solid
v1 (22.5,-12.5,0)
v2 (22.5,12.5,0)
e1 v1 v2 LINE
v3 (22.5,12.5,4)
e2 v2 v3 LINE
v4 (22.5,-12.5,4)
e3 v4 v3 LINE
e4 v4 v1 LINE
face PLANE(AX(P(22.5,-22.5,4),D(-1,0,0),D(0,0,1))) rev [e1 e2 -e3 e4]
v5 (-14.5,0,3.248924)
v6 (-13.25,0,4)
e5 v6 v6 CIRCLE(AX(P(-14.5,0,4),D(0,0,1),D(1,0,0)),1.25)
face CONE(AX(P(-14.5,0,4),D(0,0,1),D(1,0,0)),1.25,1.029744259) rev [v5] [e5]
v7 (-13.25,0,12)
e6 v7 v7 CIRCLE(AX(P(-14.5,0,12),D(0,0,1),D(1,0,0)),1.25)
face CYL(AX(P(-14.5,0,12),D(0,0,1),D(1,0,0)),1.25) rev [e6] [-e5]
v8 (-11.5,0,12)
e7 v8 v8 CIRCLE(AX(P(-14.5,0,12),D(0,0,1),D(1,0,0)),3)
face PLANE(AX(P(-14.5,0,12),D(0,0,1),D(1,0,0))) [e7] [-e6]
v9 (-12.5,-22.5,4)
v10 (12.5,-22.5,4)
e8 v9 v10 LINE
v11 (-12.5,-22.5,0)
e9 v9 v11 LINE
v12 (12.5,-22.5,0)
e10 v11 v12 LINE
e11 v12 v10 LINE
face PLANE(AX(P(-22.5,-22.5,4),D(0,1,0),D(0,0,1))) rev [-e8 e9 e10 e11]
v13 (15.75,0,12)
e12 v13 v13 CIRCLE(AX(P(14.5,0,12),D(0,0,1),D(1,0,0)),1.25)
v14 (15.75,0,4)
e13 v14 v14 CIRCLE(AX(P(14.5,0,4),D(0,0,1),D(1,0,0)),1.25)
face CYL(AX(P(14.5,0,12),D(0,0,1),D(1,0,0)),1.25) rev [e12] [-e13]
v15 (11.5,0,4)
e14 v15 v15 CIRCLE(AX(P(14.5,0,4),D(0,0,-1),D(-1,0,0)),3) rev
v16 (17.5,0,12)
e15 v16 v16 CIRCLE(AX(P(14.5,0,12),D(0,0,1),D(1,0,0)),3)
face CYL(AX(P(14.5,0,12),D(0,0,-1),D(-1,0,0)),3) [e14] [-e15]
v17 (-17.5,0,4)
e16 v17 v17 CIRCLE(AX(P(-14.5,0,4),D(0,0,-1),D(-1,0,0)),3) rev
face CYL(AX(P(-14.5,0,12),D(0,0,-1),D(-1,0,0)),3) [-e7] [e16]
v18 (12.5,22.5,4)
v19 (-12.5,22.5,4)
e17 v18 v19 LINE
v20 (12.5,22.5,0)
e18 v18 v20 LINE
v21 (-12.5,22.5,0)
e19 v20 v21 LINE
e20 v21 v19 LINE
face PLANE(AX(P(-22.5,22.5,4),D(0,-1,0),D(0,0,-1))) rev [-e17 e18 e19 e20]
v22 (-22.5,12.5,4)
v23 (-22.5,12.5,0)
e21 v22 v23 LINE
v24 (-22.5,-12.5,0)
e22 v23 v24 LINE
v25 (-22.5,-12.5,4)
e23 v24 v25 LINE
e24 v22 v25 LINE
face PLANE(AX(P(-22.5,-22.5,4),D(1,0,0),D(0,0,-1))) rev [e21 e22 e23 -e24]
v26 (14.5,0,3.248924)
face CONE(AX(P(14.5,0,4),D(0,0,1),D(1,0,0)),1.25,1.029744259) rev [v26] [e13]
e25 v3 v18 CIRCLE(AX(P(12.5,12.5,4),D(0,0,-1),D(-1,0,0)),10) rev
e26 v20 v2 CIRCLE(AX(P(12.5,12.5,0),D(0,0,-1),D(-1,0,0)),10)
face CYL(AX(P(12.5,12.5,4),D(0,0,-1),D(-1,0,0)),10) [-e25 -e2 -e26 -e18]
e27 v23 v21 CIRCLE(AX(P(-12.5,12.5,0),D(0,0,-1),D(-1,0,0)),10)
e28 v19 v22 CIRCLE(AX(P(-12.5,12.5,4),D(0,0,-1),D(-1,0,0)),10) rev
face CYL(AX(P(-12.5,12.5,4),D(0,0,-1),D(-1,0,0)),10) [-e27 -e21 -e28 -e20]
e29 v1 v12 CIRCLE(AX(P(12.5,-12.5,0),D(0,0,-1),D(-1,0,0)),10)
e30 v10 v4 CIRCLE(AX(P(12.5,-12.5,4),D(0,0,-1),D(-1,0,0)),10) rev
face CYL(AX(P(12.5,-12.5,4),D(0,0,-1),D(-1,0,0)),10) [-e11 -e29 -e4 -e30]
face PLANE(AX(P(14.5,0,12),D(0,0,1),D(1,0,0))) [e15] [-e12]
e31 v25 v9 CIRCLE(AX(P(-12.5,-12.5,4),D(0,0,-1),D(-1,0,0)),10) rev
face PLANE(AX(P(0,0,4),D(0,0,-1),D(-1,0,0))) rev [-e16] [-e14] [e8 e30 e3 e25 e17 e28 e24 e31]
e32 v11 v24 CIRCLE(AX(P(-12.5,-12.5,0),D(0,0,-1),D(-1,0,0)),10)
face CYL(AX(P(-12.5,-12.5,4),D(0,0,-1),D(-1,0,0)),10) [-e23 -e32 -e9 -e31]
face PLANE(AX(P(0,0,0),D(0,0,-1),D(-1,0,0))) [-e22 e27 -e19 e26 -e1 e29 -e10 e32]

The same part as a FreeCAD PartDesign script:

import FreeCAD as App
import Part
import Sketcher


def edges_at(feature, points):
    """Names of the edges that pass closest to the given points."""
    edges = feature.Shape.Edges
    near = lambda p: min(range(len(edges)), key=lambda i: edges[i].distToShape(Part.Vertex(*p))[0])
    return sorted({f"Edge{near(p) + 1}" for p in points})


def add_polygon(sketch, points):
    """Adds a closed chain of lines whose ends are joined by coincident constraints."""
    first, n = sketch.GeometryCount, len(points)
    for a, b in zip(points, points[1:] + points[:1]):
        sketch.addGeometry(Part.LineSegment(App.Vector(*a, 0), App.Vector(*b, 0)), False)
    for i in range(n):
        sketch.addConstraint(Sketcher.Constraint("Coincident", first + i, 2, first + (i + 1) % n, 1))

doc = App.newDocument("Part")
body = doc.addObject("PartDesign::Body", "Body")

# Sketch on XY plane
sketch1 = body.newObject("Sketcher::SketchObject", "Sketch")
sketch1.AttachmentSupport = (doc.getObject("XY_Plane"), [""])
sketch1.MapMode = "FlatFace"
add_polygon(sketch1, [(-22, 22), (-22, -22), (22, -22), (22, 22)])  # lines 0-3
sketch1.addConstraint([
    Sketcher.Constraint("Vertical", 0),
    Sketcher.Constraint("Horizontal", 1),
    Sketcher.Constraint("Vertical", 2),
    Sketcher.Constraint("Horizontal", 3),
    Sketcher.Constraint("Symmetric", 0, 2, 2, 2, -1, 1),
    Sketcher.Constraint("Equal", 3, 0),
    Sketcher.Constraint("DistanceX", 1, 1, 1, 2, 45.0),
])
pad1 = body.newObject("PartDesign::Pad", "Pad")
pad1.Profile = sketch1
pad1.Length = 4

# Sketch on XY plane
sketch2 = body.newObject("Sketcher::SketchObject", "Sketch001")
sketch2.AttachmentSupport = (doc.getObject("XY_Plane"), [""])
sketch2.MapMode = "FlatFace"
sketch2.AttachmentOffset = App.Placement(App.Vector(0, 0, 4), App.Rotation())
sketch2.addGeometry(Part.Circle(App.Vector(-14.5, 0, 0), App.Vector(0, 0, 1), 3), False)
sketch2.addConstraint([
    Sketcher.Constraint("PointOnObject", 0, 3, -1),
    Sketcher.Constraint("Diameter", 0, 6.0),
    Sketcher.Constraint("DistanceX", 0, 3, -1, 1, 14.5),
])
pad2 = body.newObject("PartDesign::Pad", "Pad001")
pad2.Profile = sketch2
pad2.Length = 8

# Sketch on XY plane
sketch3 = body.newObject("Sketcher::SketchObject", "Sketch002")
sketch3.AttachmentSupport = (doc.getObject("XY_Plane"), [""])
sketch3.MapMode = "FlatFace"
sketch3.AttachmentOffset = App.Placement(App.Vector(0, 0, 4), App.Rotation())
sketch3.addGeometry(Part.Circle(App.Vector(14.5, 0, 0), App.Vector(0, 0, 1), 3), False)
sketch3.addConstraint([
    Sketcher.Constraint("PointOnObject", 0, 3, -1),
    Sketcher.Constraint("Diameter", 0, 6.0),
    Sketcher.Constraint("DistanceX", -1, 1, 0, 3, 14.5),
])
pad3 = body.newObject("PartDesign::Pad", "Pad002")
pad3.Profile = sketch3
pad3.Length = 8

# Sketch on XY plane
sketch4 = body.newObject("Sketcher::SketchObject", "Sketch003")
sketch4.AttachmentSupport = (doc.getObject("XY_Plane"), [""])
sketch4.MapMode = "FlatFace"
sketch4.AttachmentOffset = App.Placement(App.Vector(0, 0, 12), App.Rotation())
sketch4.addGeometry(Part.Circle(App.Vector(-14.5, 0, 0), App.Vector(0, 0, 1), 1.2), False)
sketch4.addConstraint([
    Sketcher.Constraint("PointOnObject", 0, 3, -1),
    Sketcher.Constraint("Diameter", 0, 2.5),
    Sketcher.Constraint("DistanceX", 0, 3, -1, 1, 14.5),
])
doc.recompute()
hole = body.newObject("PartDesign::Hole", "Hole")
hole.Profile = sketch4
hole.ThreadType = "None"
hole.Diameter = 2.5
hole.DepthType = "Dimension"
hole.Depth = 8
hole.DrillPoint = "Angled"
hole.DrillPointAngle = 118

# Sketch on XY plane
sketch5 = body.newObject("Sketcher::SketchObject", "Sketch004")
sketch5.AttachmentSupport = (doc.getObject("XY_Plane"), [""])
sketch5.MapMode = "FlatFace"
sketch5.AttachmentOffset = App.Placement(App.Vector(0, 0, 12), App.Rotation())
sketch5.addGeometry(Part.Circle(App.Vector(14.5, 0, 0), App.Vector(0, 0, 1), 1.2), False)
sketch5.addConstraint([
    Sketcher.Constraint("PointOnObject", 0, 3, -1),
    Sketcher.Constraint("Diameter", 0, 2.5),
    Sketcher.Constraint("DistanceX", -1, 1, 0, 3, 14.5),
])
doc.recompute()
hole2 = body.newObject("PartDesign::Hole", "Hole001")
hole2.Profile = sketch5
hole2.ThreadType = "None"
hole2.Diameter = 2.5
hole2.DepthType = "Dimension"
hole2.Depth = 8
hole2.DrillPoint = "Angled"
hole2.DrillPointAngle = 118
doc.recompute()

fillet = body.newObject("PartDesign::Fillet", "Fillet")
fillet.Base = (hole2, edges_at(hole2, [(-22.5, 22.5, 2)]))
fillet.Radius = 10
doc.recompute()

fillet2 = body.newObject("PartDesign::Fillet", "Fillet001")
fillet2.Base = (fillet, edges_at(fillet, [(22.5, -22.5, 2), (-22.5, -22.5, 2), (22.5, 22.5, 2)]))
fillet2.Radius = 10

doc.recompute()
